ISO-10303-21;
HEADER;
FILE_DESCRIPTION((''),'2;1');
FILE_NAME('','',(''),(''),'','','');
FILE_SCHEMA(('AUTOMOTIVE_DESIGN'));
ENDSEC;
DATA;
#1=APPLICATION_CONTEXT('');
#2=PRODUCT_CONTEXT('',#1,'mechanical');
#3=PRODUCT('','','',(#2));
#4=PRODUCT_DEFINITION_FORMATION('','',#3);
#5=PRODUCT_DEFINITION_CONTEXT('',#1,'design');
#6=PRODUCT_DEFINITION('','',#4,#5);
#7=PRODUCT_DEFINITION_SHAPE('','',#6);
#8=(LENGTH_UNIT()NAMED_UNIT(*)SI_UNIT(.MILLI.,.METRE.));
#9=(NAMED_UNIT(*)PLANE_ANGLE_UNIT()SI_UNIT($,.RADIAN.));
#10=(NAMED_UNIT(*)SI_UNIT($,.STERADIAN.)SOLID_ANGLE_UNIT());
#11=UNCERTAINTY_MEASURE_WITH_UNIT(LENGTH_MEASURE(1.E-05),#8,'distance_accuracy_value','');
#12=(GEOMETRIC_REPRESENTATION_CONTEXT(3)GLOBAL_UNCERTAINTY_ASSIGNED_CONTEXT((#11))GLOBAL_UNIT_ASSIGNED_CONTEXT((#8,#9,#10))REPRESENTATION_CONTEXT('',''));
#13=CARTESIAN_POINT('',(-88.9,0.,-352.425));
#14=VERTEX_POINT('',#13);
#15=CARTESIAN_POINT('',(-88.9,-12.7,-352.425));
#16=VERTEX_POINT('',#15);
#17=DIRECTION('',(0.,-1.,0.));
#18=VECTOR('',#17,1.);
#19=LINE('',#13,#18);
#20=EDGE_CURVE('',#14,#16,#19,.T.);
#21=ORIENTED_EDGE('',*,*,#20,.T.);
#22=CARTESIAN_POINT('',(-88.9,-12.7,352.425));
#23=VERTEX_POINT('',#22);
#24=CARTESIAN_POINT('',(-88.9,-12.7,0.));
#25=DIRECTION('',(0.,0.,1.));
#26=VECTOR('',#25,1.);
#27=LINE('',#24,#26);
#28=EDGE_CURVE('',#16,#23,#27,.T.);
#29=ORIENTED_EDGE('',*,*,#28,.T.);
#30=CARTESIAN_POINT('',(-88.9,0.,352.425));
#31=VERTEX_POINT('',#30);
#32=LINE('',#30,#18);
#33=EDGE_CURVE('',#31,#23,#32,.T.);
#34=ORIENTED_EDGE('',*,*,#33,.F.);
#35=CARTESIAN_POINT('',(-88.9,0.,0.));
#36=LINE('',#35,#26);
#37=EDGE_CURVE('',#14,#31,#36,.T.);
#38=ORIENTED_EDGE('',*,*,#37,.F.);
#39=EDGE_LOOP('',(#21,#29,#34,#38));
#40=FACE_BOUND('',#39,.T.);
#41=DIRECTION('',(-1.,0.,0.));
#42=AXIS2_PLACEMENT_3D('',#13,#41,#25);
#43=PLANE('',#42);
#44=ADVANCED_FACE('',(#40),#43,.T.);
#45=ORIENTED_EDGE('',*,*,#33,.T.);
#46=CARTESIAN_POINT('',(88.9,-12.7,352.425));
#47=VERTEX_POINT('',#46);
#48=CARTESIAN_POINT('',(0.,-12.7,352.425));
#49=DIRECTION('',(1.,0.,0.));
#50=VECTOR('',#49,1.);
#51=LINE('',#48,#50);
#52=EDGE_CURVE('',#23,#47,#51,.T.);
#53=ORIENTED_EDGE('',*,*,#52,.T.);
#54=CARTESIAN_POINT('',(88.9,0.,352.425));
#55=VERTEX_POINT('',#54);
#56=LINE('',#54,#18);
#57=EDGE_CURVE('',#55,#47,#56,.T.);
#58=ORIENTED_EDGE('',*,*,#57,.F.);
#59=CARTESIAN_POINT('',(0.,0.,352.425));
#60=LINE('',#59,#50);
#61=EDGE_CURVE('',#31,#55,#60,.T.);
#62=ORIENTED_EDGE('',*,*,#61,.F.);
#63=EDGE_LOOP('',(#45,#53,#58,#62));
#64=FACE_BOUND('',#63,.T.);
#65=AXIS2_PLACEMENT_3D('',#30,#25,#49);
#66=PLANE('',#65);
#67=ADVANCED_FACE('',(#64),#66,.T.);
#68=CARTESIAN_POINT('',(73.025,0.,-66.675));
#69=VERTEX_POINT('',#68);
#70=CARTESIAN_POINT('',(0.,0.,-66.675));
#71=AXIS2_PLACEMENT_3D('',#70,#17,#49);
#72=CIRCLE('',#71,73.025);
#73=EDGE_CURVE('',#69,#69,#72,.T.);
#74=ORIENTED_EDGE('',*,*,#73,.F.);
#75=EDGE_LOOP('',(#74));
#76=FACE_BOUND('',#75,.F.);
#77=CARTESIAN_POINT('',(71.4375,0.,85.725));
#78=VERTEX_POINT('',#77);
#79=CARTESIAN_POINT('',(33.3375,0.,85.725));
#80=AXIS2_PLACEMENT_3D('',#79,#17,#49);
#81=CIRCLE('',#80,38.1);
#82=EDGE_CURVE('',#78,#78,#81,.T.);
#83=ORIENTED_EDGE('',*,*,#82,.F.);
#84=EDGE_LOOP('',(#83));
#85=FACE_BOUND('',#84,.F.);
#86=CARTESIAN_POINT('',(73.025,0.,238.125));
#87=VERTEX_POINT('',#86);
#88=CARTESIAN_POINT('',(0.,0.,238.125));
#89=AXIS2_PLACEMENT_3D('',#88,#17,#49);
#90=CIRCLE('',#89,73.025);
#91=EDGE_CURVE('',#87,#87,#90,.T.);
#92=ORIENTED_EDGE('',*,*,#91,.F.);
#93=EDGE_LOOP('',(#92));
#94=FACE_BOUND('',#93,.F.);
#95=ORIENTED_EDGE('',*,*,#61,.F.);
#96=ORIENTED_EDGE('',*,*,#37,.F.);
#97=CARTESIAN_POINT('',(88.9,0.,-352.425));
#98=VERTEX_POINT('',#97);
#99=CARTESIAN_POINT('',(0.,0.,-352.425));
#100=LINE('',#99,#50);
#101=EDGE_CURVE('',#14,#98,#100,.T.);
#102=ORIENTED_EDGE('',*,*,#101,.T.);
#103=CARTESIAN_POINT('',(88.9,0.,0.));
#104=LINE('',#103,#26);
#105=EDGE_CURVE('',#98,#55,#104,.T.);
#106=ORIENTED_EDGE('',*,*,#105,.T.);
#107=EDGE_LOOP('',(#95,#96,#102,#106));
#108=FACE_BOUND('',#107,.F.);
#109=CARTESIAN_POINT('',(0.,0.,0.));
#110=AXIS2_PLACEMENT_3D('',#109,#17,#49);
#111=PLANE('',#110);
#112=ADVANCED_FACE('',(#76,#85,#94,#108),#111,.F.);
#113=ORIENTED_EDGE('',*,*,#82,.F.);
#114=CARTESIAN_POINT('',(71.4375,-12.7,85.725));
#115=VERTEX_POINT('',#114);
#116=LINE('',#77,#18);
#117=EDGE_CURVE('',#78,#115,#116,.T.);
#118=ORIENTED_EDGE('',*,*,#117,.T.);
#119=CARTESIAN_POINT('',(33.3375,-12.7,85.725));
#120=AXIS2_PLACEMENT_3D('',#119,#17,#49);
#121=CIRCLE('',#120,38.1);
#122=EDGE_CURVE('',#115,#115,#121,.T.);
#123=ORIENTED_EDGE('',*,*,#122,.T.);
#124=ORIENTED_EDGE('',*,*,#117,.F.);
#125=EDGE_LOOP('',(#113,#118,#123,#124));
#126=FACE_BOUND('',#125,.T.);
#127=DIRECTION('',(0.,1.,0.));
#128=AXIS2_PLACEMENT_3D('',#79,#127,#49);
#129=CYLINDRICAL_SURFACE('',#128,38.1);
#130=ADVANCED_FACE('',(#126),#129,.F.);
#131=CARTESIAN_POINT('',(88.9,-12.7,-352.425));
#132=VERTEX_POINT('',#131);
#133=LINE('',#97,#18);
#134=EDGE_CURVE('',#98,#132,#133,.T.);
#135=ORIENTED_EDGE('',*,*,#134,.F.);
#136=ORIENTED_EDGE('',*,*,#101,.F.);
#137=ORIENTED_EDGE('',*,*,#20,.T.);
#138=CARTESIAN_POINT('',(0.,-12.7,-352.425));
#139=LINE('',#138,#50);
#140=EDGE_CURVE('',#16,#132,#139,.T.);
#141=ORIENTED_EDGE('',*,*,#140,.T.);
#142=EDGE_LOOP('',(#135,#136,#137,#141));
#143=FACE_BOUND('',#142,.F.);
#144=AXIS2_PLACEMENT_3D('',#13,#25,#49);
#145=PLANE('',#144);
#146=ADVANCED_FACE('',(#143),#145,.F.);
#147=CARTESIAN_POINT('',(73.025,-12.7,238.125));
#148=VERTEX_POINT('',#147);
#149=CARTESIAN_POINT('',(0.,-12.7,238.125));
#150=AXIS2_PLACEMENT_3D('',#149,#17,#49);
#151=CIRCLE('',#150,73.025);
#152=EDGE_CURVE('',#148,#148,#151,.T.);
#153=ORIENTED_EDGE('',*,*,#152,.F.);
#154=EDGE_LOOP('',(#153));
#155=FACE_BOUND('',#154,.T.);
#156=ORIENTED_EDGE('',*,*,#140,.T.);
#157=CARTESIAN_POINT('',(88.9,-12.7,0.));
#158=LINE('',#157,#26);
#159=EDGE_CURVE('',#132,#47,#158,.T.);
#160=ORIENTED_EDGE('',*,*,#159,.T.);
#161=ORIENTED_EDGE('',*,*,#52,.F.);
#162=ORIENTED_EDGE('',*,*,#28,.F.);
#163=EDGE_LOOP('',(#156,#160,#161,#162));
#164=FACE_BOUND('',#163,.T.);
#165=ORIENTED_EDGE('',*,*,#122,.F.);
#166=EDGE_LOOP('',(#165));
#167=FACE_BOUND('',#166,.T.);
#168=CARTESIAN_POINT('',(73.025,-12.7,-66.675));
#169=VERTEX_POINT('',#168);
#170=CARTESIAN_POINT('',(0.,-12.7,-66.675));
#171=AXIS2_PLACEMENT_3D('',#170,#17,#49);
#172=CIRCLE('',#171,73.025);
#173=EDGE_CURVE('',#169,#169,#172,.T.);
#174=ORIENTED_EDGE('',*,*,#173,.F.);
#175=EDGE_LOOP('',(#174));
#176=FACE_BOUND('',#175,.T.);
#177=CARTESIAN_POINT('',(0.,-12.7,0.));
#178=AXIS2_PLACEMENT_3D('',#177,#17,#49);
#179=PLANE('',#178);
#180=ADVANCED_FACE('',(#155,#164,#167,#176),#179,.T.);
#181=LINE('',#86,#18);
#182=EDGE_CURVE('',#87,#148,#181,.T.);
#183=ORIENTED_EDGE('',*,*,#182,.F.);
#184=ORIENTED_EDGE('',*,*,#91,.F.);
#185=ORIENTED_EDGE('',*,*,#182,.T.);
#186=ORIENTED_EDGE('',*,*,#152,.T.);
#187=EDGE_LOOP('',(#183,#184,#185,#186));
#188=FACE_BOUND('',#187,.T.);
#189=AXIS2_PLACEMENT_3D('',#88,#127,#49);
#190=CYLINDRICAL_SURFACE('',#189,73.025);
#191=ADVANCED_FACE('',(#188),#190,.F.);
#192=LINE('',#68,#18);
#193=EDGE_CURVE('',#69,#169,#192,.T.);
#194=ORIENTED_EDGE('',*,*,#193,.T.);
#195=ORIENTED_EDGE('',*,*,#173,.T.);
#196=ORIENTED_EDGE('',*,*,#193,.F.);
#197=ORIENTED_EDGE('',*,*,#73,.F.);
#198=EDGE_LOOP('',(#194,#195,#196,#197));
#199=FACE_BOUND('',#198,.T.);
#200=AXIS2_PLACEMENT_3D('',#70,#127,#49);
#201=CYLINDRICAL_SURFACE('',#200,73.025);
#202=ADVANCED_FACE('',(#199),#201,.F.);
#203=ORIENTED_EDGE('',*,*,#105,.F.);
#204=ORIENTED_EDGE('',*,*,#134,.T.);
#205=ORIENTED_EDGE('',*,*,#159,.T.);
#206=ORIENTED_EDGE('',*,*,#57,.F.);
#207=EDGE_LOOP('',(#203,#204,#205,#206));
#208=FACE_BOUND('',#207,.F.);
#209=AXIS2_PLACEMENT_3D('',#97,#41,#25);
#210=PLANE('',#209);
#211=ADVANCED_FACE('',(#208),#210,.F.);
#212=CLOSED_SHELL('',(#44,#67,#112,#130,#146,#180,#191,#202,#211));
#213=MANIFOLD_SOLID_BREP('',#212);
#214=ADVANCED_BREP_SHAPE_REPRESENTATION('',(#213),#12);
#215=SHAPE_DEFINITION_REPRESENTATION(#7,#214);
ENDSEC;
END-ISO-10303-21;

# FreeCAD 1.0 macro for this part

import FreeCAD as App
import Part
import Sketcher

V = App.Vector
Q = App.Units.Quantity

doc = App.newDocument("Part")
params = doc.addObject("Spreadsheet::Sheet", "Params")
for row, (alias, value) in enumerate([
    ("sketch1_diameter", "3 in"),
    ("sketch1_diameter2", "5.75 in"),
    ("sketch1_width", "7 in"),
    ("sketch1_height", "27.75 in"),
    ("pad1_length", "0.5 in"),
], start=1):
    params.set(f"A{row}", alias)
    params.set(f"B{row}", "=" + value)
    params.setAlias(f"B{row}", alias)

body = doc.addObject("PartDesign::Body", "Body")

# Sketch on XZ plane
sketch1 = body.newObject("Sketcher::SketchObject", "Sketch")
sketch1.AttachmentSupport = (doc.getObject("XZ_Plane"), [""])
sketch1.MapMode = "FlatFace"
sketch1.addGeometry([
    Part.LineSegment(V(-89, 352, 0), V(-89, -352, 0)),  # 0
    Part.LineSegment(V(-89, -352, 0), V(89, -352, 0)),  # 1
    Part.LineSegment(V(89, -352, 0), V(89, 352, 0)),  # 2
    Part.LineSegment(V(89, 352, 0), V(-89, 352, 0)),  # 3
    Part.Circle(V(0, -67, 0), V(0, 0, 1), 73),  # 4
    Part.Circle(V(33, 86, 0), V(0, 0, 1), 38),  # 5
    Part.Circle(V(0, 238, 0), V(0, 0, 1), 73),  # 6
], False)
sketch1.addConstraint([
    Sketcher.Constraint("Coincident", 0, 2, 1, 1),
    Sketcher.Constraint("Coincident", 1, 2, 2, 1),
    Sketcher.Constraint("Coincident", 2, 2, 3, 1),
    Sketcher.Constraint("Coincident", 3, 2, 0, 1),
    Sketcher.Constraint("Vertical", 0),
    Sketcher.Constraint("Horizontal", 1),
    Sketcher.Constraint("Vertical", 2),
    Sketcher.Constraint("Horizontal", 3),
    Sketcher.Constraint("Equal", 4, 6),
    Sketcher.Constraint("Symmetric", 0, 2, 2, 2, -1, 1),
    Sketcher.Constraint("PointOnObject", 4, 3, -2),
    Sketcher.Constraint("PointOnObject", 6, 3, -2),
    Sketcher.Constraint("Diameter", 5, Q("3 in")),
    Sketcher.Constraint("Diameter", 4, Q("5.75 in")),
    Sketcher.Constraint("DistanceX", 1, 1, 1, 2, Q("7 in")),
    Sketcher.Constraint("DistanceY", 4, 3, 5, 3, Q("6 in")),
    Sketcher.Constraint("DistanceY", 5, 3, 6, 3, Q("6 in")),
    Sketcher.Constraint("DistanceY", 0, 2, 0, 1, Q("27.75 in")),
    Sketcher.Constraint("DistanceY", 6, 3, 2, 2, Q("4.5 in")),
    Sketcher.Constraint("DistanceX", -1, 1, 5, 3, Q("1.3125 in")),
])
sketch1.setExpression("Constraints[12]", "Params.sketch1_diameter")
sketch1.setExpression("Constraints[13]", "Params.sketch1_diameter2")
sketch1.setExpression("Constraints[14]", "Params.sketch1_width")
sketch1.setExpression("Constraints[17]", "Params.sketch1_height")
pad1 = body.newObject("PartDesign::Pad", "Pad")
pad1.Profile = sketch1
pad1.setExpression("Length", "Params.pad1_length")

doc.recompute()
